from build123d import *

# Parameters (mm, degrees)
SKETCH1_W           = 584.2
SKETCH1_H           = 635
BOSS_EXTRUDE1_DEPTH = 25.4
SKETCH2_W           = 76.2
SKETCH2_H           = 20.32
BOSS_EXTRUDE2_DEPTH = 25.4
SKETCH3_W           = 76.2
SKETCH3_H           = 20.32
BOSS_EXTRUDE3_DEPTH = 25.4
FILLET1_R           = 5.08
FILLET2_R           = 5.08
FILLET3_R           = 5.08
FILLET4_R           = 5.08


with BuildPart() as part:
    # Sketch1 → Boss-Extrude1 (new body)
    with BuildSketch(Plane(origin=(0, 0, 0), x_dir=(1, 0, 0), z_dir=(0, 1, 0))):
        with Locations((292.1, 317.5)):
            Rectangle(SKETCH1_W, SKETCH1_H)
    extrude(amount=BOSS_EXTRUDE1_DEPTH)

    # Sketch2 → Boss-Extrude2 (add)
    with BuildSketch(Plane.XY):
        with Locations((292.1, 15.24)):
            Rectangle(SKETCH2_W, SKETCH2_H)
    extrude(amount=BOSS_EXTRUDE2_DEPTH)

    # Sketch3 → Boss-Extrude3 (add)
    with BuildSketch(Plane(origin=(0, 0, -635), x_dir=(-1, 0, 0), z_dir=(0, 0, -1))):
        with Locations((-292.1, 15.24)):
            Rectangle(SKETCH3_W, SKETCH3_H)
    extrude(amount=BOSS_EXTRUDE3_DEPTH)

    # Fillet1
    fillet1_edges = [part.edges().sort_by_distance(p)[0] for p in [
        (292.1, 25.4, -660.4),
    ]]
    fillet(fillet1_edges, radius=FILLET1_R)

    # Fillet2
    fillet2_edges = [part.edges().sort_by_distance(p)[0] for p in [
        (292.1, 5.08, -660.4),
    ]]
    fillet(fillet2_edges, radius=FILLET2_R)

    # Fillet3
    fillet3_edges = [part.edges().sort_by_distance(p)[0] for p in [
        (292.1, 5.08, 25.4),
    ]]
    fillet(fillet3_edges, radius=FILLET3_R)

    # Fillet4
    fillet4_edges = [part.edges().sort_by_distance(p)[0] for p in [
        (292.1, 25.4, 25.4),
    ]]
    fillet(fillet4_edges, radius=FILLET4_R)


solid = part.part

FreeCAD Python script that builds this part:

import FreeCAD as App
import Part
import Sketcher

V = App.Vector
Q = App.Units.Quantity


def edges_at(feature, points):
    """Names of the edges that pass closest to the given points."""
    edges = feature.Shape.Edges
    near = lambda p: min(range(len(edges)), key=lambda i: edges[i].distToShape(Part.Vertex(*p))[0])
    return sorted({f"Edge{near(p) + 1}" for p in points})

doc = App.newDocument("Part")
body = doc.addObject("PartDesign::Body", "Body")

# Sketch on XZ plane
sketch1 = doc.addObject("Sketcher::SketchObject", "Sketch")
body.addObject(sketch1)
sketch1.AttachmentSupport = (doc.XZ_Plane, [""])
sketch1.MapMode = "FlatFace"
sketch1.addGeometry([
    Part.LineSegment(V(0, -635, 0), V(0, 0, 0)),
    Part.LineSegment(V(0, 0, 0), V(584.2, 0, 0)),
    Part.LineSegment(V(584.2, 0, 0), V(584.2, -635, 0)),
    Part.LineSegment(V(584.2, -635, 0), V(0, -635, 0)),
], False)
sketch1.addConstraint([
    Sketcher.Constraint("Coincident", 0, 2, 1, 1),
    Sketcher.Constraint("Coincident", 1, 2, 2, 1),
    Sketcher.Constraint("Coincident", 2, 2, 3, 1),
    Sketcher.Constraint("Coincident", 3, 2, 0, 1),
    Sketcher.Constraint("Vertical", 0),
    Sketcher.Constraint("Horizontal", 1),
    Sketcher.Constraint("Vertical", 2),
    Sketcher.Constraint("Horizontal", 3),
    Sketcher.Constraint("Coincident", 0, 2, -1, 1),
    Sketcher.Constraint("DistanceX", 1, 1, 1, 2, Q("23 in")),
    Sketcher.Constraint("DistanceY", 0, 1, 0, 2, Q("25 in")),
])
pad1 = doc.addObject("PartDesign::Pad", "Pad")
body.addObject(pad1)
pad1.Profile = sketch1
pad1.Length = Q("1 in")
pad1.Reversed = True

# Sketch on XY plane
sketch2 = doc.addObject("Sketcher::SketchObject", "Sketch001")
body.addObject(sketch2)
sketch2.AttachmentSupport = (doc.XY_Plane, [""])
sketch2.MapMode = "FlatFace"
sketch2.addGeometry([
    Part.LineSegment(V(254, 25.4, 0), V(254, 5.08, 0)),
    Part.LineSegment(V(254, 5.08, 0), V(330.2, 5.08, 0)),
    Part.LineSegment(V(330.2, 5.08, 0), V(330.2, 25.4, 0)),
    Part.LineSegment(V(330.2, 25.4, 0), V(254, 25.4, 0)),
], False)
sketch2.addConstraint([
    Sketcher.Constraint("Coincident", 0, 2, 1, 1),
    Sketcher.Constraint("Coincident", 1, 2, 2, 1),
    Sketcher.Constraint("Coincident", 2, 2, 3, 1),
    Sketcher.Constraint("Coincident", 3, 2, 0, 1),
    Sketcher.Constraint("Vertical", 0),
    Sketcher.Constraint("Horizontal", 1),
    Sketcher.Constraint("Vertical", 2),
    Sketcher.Constraint("Horizontal", 3),
    Sketcher.Constraint("DistanceX", 1, 1, 1, 2, Q("3 in")),
    Sketcher.Constraint("DistanceY", 0, 2, 0, 1, Q("0.8 in")),
    Sketcher.Constraint("DistanceX", -1, 1, 0, 2, Q("10 in")),
    Sketcher.Constraint("DistanceY", -1, 1, 2, 2, Q("1 in")),
])
pad2 = doc.addObject("PartDesign::Pad", "Pad001")
body.addObject(pad2)
pad2.Profile = sketch2
pad2.Length = Q("1 in")

# Sketch on XY plane
sketch3 = doc.addObject("Sketcher::SketchObject", "Sketch002")
body.addObject(sketch3)
sketch3.AttachmentSupport = (doc.XY_Plane, [""])
sketch3.MapMode = "FlatFace"
sketch3.AttachmentOffset = App.Placement(V(0, 0, -25 * 25.4), App.Rotation())
sketch3.addGeometry([
    Part.LineSegment(V(330.2, 25.4, 0), V(330.2, 5.08, 0)),
    Part.LineSegment(V(330.2, 5.08, 0), V(254, 5.08, 0)),
    Part.LineSegment(V(254, 5.08, 0), V(254, 25.4, 0)),
    Part.LineSegment(V(254, 25.4, 0), V(330.2, 25.4, 0)),
], False)
sketch3.addConstraint([
    Sketcher.Constraint("Coincident", 0, 2, 1, 1),
    Sketcher.Constraint("Coincident", 1, 2, 2, 1),
    Sketcher.Constraint("Coincident", 2, 2, 3, 1),
    Sketcher.Constraint("Coincident", 3, 2, 0, 1),
    Sketcher.Constraint("Vertical", 0),
    Sketcher.Constraint("Horizontal", 1),
    Sketcher.Constraint("Vertical", 2),
    Sketcher.Constraint("Horizontal", 3),
    Sketcher.Constraint("DistanceX", 1, 2, 1, 1, Q("3 in")),
    Sketcher.Constraint("DistanceY", 0, 2, 0, 1, Q("0.8 in")),
    Sketcher.Constraint("DistanceX", -1, 1, 0, 2, Q("13 in")),
    Sketcher.Constraint("DistanceY", -1, 1, 2, 2, Q("1 in")),
])
pad3 = doc.addObject("PartDesign::Pad", "Pad002")
body.addObject(pad3)
pad3.Profile = sketch3
pad3.Length = Q("1 in")
pad3.Reversed = True
doc.recompute()

fillet = doc.addObject("PartDesign::Fillet", "Fillet")
body.addObject(fillet)
fillet.Base = (pad3, edges_at(pad3, [(292.1, 25.4, -660.4)]))
fillet.Radius = Q("0.2 in")
doc.recompute()

fillet2 = doc.addObject("PartDesign::Fillet", "Fillet001")
body.addObject(fillet2)
fillet2.Base = (fillet, edges_at(fillet, [(292.1, 5.08, -660.4)]))
fillet2.Radius = Q("0.2 in")
doc.recompute()

fillet3 = doc.addObject("PartDesign::Fillet", "Fillet002")
body.addObject(fillet3)
fillet3.Base = (fillet2, edges_at(fillet2, [(292.1, 5.08, 25.4)]))
fillet3.Radius = Q("0.2 in")
doc.recompute()

fillet4 = doc.addObject("PartDesign::Fillet", "Fillet003")
body.addObject(fillet4)
fillet4.Base = (fillet3, edges_at(fillet3, [(292.1, 25.4, 25.4)]))
fillet4.Radius = Q("0.2 in")

doc.recompute()
